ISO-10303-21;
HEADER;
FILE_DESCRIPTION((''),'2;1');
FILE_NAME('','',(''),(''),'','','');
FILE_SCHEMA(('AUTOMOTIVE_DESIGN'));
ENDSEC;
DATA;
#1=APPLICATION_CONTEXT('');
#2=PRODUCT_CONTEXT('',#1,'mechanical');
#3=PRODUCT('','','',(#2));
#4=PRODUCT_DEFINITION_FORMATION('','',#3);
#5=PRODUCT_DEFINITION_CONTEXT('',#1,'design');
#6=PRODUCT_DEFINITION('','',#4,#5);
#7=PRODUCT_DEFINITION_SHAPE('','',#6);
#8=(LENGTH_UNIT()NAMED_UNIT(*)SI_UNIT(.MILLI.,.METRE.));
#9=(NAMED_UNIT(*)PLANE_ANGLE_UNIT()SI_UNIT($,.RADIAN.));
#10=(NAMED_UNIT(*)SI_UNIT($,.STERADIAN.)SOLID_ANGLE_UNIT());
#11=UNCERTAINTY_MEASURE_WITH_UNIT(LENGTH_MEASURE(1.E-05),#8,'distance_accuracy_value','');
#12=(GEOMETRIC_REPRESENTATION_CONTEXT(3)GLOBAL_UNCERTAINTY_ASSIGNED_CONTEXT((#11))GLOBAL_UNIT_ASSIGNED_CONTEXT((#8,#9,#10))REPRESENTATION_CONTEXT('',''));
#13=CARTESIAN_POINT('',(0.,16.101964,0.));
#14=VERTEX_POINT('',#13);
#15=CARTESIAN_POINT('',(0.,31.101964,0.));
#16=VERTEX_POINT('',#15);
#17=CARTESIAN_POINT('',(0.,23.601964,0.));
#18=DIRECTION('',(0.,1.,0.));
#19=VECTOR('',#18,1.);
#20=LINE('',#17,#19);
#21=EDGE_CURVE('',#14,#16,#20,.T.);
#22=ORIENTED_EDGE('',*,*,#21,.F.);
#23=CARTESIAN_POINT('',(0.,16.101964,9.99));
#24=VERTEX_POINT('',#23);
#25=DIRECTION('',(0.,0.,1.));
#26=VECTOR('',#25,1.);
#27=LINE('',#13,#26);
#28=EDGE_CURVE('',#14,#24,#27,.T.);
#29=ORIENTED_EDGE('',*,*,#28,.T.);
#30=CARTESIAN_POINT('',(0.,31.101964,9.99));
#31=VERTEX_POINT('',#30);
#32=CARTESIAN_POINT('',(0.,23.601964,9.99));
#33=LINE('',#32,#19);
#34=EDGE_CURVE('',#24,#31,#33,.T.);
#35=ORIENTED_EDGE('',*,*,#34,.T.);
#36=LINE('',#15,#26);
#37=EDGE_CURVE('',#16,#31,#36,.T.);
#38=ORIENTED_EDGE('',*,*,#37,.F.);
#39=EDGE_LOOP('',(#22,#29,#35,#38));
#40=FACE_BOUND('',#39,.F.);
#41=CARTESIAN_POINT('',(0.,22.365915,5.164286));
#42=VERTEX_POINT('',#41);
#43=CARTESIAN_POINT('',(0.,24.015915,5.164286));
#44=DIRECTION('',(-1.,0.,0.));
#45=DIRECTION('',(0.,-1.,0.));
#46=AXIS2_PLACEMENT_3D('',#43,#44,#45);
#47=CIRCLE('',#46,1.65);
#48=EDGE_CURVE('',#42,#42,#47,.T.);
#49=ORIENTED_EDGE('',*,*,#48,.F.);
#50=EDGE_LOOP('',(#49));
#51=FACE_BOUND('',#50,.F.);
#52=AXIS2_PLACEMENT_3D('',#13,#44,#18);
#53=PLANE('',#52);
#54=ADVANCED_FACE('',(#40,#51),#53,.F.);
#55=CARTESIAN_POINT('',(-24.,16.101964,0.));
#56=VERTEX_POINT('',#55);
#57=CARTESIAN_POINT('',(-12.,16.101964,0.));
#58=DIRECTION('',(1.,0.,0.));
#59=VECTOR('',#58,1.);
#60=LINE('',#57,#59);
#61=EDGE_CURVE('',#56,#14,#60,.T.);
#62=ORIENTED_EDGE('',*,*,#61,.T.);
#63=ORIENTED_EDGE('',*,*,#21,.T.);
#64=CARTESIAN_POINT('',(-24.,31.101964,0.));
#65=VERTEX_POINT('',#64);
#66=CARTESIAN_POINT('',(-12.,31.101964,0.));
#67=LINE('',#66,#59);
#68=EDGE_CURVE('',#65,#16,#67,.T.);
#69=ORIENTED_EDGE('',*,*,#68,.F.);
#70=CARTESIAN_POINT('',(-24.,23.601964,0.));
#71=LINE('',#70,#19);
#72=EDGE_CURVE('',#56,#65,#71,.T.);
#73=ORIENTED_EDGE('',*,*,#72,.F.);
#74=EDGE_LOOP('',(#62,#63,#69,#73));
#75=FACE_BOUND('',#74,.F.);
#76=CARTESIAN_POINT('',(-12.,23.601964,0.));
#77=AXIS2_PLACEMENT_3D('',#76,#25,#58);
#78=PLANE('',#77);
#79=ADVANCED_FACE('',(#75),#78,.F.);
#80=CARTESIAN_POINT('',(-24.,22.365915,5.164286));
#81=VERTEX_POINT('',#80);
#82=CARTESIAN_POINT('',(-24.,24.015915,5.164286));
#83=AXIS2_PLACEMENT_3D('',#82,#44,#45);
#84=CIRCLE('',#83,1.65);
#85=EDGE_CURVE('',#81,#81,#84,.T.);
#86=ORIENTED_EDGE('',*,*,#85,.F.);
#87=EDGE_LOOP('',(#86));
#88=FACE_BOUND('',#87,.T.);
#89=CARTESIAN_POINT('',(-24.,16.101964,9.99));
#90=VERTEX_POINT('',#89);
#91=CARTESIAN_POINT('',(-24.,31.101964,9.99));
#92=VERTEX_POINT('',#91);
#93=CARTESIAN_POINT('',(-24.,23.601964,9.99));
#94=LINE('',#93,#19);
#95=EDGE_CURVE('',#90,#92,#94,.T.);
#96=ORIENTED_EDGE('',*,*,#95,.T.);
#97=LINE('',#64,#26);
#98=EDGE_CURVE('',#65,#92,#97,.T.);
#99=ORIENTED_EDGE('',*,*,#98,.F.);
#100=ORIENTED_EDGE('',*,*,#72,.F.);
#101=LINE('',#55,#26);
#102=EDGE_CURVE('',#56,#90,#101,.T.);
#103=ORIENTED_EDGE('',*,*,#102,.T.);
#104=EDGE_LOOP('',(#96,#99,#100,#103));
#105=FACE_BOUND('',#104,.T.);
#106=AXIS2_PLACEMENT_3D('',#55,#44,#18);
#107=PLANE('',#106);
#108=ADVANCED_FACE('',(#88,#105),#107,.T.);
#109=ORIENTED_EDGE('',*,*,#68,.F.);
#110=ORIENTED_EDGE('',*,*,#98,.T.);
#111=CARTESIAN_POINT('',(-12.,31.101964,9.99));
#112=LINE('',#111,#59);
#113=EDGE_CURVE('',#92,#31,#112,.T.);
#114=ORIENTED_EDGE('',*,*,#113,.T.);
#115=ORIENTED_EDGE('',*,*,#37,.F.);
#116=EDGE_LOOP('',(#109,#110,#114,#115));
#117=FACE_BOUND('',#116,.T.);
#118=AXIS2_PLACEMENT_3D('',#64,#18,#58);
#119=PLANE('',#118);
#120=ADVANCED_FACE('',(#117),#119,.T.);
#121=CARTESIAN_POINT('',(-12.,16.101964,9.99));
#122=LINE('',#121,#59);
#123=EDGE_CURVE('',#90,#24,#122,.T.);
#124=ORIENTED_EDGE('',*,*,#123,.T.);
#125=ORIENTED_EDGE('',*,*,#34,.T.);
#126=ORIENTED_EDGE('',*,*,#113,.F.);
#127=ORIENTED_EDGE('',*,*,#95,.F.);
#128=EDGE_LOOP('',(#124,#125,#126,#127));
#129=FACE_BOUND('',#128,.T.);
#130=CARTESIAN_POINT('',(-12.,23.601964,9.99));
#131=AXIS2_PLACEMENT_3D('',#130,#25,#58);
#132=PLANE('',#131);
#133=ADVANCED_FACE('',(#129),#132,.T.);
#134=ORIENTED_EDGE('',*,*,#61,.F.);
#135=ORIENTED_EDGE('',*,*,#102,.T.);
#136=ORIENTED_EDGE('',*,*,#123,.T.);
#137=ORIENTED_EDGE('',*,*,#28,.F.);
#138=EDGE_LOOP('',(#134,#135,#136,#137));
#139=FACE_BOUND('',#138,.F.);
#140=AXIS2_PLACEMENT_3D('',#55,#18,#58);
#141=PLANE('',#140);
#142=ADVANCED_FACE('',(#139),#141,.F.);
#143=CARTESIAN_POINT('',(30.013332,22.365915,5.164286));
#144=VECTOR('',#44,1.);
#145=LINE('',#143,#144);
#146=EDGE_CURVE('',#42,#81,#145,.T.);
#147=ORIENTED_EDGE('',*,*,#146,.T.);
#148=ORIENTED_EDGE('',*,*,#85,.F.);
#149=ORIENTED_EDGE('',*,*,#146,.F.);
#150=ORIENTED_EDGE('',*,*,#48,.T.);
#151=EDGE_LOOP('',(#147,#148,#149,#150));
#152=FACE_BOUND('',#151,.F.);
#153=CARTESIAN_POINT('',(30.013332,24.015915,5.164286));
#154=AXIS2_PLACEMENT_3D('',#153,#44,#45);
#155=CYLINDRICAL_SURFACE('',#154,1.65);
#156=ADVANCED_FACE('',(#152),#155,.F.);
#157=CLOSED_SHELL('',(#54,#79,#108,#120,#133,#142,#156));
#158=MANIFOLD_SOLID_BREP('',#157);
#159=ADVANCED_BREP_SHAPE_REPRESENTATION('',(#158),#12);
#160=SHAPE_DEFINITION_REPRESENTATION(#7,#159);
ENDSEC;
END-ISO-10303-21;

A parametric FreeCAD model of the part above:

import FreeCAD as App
import Part
import Sketcher
from FreeCAD import Vector


def add_polygon(sketch, points):
    """Adds a closed chain of lines whose ends are joined by coincident constraints."""
    first, n = sketch.GeometryCount, len(points)
    for a, b in zip(points, points[1:] + points[:1]):
        sketch.addGeometry(Part.LineSegment(App.Vector(*a, 0), App.Vector(*b, 0)), False)
    for i in range(n):
        sketch.addConstraint(Sketcher.Constraint("Coincident", first + i, 2, first + (i + 1) % n, 1))

doc = App.newDocument("Part")
body = doc.addObject("PartDesign::Body", "Body")

sketch1 = body.newObject("Sketcher::SketchObject", "Sketch")
sketch1.AttachmentSupport = (doc.getObject("XY_Plane"), [""])
sketch1.MapMode = "FlatFace"
add_polygon(sketch1, [(-24, 31.101964), (-24, 16.101964), (0, 16.101964), (0, 31.101964)])
sketch1.addConstraint([
    Sketcher.Constraint("Vertical", 0),
    Sketcher.Constraint("Horizontal", 1),
    Sketcher.Constraint("Vertical", 2),
    Sketcher.Constraint("Horizontal", 3),
    Sketcher.Constraint("PointOnObject", 1, 2, -2),
    Sketcher.Constraint("DistanceX", 1, 1, 1, 2, 24.0),
    Sketcher.Constraint("DistanceY", 0, 2, 0, 1, 15.0),
    Sketcher.Constraint("DistanceY", -1, 1, 0, 2, 16.101964),
])
pad1 = body.newObject("PartDesign::Pad", "Pad")
pad1.Profile = sketch1
pad1.Length = 9.99

sketch2 = body.newObject("Sketcher::SketchObject", "Sketch001")
sketch2.AttachmentSupport = (doc.getObject("YZ_Plane"), [""])
sketch2.MapMode = "FlatFace"
sketch2.addGeometry(Part.Circle(Vector(24.015915, 5.164286, 0), Vector(0, 0, 1), 1.65), False)
sketch2.addConstraint([
    Sketcher.Constraint("Diameter", 0, 3.3),
    Sketcher.Constraint("DistanceX", -1, 1, 0, 3, 24.015915),
    Sketcher.Constraint("DistanceY", -1, 1, 0, 3, 5.164286),
])
doc.recompute()
hole = body.newObject("PartDesign::Hole", "Hole")
hole.Profile = sketch2
hole.ThreadType = "None"
hole.Diameter = 3.3
hole.DepthType = "ThroughAll"

doc.recompute()
